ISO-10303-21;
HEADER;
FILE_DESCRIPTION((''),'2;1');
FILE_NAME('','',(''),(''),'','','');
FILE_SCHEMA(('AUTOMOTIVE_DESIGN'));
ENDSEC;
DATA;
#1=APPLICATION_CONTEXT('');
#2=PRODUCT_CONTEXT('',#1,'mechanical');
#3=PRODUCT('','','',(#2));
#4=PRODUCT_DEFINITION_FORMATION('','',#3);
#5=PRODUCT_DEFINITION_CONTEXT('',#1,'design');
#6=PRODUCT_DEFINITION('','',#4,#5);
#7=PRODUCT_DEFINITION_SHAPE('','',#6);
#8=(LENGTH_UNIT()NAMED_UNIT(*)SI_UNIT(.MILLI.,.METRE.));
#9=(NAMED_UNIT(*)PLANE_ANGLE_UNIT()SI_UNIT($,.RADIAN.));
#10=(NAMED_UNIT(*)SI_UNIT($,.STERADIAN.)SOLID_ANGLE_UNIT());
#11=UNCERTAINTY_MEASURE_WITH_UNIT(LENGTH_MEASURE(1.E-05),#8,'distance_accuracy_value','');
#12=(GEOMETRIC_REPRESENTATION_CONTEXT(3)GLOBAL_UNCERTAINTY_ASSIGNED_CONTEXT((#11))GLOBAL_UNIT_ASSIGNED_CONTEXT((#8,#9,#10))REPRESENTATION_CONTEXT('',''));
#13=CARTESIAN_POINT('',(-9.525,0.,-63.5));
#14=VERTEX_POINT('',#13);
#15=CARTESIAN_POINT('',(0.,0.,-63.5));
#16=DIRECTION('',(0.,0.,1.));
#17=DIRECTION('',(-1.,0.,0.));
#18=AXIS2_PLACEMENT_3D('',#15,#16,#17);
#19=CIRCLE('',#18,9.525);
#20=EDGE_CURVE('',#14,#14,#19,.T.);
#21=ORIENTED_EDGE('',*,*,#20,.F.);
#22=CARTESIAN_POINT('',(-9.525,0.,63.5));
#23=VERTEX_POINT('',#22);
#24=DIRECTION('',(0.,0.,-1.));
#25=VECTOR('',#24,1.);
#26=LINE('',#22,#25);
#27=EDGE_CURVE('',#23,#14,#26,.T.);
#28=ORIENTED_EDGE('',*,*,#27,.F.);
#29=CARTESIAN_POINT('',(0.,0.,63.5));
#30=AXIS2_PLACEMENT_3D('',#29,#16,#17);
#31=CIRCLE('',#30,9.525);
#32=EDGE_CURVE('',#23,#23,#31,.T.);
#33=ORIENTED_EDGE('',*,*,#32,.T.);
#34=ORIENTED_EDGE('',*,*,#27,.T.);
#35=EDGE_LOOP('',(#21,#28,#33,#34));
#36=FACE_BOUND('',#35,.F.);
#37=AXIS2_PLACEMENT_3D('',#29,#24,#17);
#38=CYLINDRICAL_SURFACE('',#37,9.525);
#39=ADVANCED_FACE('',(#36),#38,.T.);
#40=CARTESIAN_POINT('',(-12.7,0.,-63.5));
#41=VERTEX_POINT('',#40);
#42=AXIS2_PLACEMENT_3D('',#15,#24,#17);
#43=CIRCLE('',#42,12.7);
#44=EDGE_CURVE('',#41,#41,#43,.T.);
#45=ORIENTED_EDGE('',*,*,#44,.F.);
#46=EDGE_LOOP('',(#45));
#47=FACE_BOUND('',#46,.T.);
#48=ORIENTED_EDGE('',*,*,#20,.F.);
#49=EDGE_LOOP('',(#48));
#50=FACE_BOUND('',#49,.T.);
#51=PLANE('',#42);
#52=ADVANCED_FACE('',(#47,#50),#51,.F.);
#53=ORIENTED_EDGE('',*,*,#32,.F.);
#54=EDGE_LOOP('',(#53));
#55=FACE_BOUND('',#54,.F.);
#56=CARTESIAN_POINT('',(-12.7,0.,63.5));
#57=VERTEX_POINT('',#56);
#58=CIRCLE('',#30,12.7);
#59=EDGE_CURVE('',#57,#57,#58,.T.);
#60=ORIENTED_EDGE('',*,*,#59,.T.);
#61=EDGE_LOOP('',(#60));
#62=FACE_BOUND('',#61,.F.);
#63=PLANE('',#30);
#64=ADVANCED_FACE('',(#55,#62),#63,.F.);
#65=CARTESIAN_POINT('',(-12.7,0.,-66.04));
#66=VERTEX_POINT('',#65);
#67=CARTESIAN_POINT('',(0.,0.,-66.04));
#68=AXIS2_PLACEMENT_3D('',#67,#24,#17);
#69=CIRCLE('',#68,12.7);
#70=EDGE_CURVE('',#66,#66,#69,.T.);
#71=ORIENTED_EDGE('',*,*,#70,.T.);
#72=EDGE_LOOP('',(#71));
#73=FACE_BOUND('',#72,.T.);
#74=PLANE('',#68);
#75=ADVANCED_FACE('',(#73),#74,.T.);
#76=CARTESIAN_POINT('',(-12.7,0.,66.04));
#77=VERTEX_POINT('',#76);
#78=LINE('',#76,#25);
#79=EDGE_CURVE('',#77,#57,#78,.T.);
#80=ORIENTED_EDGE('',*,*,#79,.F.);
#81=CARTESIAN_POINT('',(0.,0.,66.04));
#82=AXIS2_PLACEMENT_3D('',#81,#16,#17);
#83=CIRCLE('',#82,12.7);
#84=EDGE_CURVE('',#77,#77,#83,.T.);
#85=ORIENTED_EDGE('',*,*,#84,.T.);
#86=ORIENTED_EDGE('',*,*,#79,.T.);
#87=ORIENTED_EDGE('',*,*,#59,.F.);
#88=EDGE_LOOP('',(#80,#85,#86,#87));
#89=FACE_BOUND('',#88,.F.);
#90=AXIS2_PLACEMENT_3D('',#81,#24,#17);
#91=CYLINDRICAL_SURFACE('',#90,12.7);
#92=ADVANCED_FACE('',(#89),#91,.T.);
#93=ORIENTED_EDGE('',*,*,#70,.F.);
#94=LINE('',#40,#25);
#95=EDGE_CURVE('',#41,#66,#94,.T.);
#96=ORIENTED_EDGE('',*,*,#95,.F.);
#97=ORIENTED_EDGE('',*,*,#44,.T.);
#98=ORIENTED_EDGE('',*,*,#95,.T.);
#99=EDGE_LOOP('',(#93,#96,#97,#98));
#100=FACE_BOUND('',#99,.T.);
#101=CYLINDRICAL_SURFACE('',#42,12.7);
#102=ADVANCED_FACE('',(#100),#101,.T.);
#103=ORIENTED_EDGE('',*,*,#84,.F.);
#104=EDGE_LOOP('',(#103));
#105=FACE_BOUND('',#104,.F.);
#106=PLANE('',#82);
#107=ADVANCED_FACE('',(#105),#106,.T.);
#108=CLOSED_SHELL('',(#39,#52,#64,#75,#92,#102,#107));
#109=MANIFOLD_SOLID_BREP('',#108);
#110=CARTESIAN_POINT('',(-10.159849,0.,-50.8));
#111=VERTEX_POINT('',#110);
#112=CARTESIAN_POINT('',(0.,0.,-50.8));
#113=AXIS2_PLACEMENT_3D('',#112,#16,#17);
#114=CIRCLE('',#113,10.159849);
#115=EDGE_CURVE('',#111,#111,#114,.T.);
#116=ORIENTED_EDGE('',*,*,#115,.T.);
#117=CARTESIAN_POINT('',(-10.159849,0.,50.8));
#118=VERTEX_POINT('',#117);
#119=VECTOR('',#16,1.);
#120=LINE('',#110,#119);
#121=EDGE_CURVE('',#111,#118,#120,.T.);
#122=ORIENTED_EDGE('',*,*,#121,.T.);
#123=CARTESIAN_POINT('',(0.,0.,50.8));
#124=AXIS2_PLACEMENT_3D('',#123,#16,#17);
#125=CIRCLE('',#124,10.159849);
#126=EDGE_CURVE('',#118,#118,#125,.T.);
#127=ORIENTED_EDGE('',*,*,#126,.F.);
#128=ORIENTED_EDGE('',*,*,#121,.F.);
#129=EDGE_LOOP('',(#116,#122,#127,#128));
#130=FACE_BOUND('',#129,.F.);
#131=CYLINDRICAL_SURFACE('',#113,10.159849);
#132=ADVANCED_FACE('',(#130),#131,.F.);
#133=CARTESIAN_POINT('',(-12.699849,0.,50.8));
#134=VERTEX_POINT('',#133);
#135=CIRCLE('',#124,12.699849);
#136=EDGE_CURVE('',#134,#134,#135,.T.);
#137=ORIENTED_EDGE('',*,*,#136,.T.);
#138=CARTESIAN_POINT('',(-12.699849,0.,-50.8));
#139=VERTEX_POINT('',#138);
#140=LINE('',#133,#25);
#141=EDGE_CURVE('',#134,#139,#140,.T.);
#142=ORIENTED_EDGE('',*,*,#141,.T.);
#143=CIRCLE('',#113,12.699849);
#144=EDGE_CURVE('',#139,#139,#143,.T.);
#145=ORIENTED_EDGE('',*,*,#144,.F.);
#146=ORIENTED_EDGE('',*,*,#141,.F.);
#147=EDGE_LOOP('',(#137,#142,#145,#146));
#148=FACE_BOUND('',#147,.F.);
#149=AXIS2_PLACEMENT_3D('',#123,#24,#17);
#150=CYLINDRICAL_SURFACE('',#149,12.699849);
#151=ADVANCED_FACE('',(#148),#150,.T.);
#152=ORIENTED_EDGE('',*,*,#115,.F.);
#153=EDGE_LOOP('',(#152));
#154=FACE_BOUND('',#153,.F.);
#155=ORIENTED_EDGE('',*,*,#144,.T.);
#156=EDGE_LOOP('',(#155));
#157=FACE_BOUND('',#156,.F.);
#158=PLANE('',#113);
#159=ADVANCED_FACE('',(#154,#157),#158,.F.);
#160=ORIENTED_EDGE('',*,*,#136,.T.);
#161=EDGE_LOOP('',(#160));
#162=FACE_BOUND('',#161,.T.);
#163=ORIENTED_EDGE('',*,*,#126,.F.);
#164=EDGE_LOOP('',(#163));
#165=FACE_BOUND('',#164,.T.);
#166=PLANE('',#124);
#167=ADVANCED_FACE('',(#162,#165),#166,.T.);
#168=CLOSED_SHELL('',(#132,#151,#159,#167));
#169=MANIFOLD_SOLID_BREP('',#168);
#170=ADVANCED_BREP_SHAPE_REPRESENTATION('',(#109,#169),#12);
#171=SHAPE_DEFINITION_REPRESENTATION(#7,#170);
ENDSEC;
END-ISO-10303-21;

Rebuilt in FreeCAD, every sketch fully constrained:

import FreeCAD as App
import Part
import Sketcher
from FreeCAD import Vector
Q = App.Units.Quantity

doc = App.newDocument("Part")
params = doc.addObject("Spreadsheet::Sheet", "Params")
for row, (alias, value) in enumerate([
    ("sketch1_height", "5 in"),
    ("sketch1_width", "0.375 in"),
    ("revolution_angle", "360 deg"),
    ("sketch2_width", "0.5 in"),
    ("sketch2_height", "0.1 in"),
    ("revolution2_angle", "360 deg"),
    ("sketch3_width", "0.5 in"),
    ("sketch3_height", "0.1 in"),
    ("revolution3_angle", "360 deg"),
    ("sketch4_height", "4 in"),
    ("sketch4_width", "0.1 in"),
    ("revolution4_angle", "360 deg"),
], start=1):
    params.set(f"A{row}", alias)
    params.set(f"B{row}", "=" + value)
    params.setAlias(f"B{row}", alias)

body = doc.addObject("PartDesign::Body", "Body")

# Sketch on XZ plane
sketch1 = doc.addObject("Sketcher::SketchObject", "Sketch")
body.addObject(sketch1)
sketch1.AttachmentSupport = (doc.XZ_Plane, [""])
sketch1.MapMode = "FlatFace"
sketch1.addGeometry([
    Part.LineSegment(Vector(-10, 64, 0), Vector(-10, -64, 0)),
    Part.LineSegment(Vector(-10, -64, 0), Vector(0, -64, 0)),
    Part.LineSegment(Vector(0, -64, 0), Vector(0, 64, 0)),
    Part.LineSegment(Vector(0, 64, 0), Vector(-10, 64, 0)),
], False)
sketch1.addConstraint([
    Sketcher.Constraint("Coincident", 0, 2, 1, 1),
    Sketcher.Constraint("Coincident", 1, 2, 2, 1),
    Sketcher.Constraint("Coincident", 2, 2, 3, 1),
    Sketcher.Constraint("Coincident", 3, 2, 0, 1),
    Sketcher.Constraint("Vertical", 0),
    Sketcher.Constraint("Horizontal", 1),
    Sketcher.Constraint("Vertical", 2),
    Sketcher.Constraint("Horizontal", 3),
    Sketcher.Constraint("Symmetric", 1, 2, 2, 2, -1, 1),
    Sketcher.Constraint("DistanceY", 0, 2, 0, 1, Q("5 in")),
    Sketcher.Constraint("DistanceX", 1, 1, 1, 2, Q("0.375 in")),
])
sketch1.setExpression("Constraints[9]", "Params.sketch1_height")
sketch1.setExpression("Constraints[10]", "Params.sketch1_width")
revolution = doc.addObject("PartDesign::Revolution", "Revolution")
body.addObject(revolution)
revolution.Profile = sketch1
revolution.ReferenceAxis = (sketch1, ["V_Axis"])
revolution.setExpression("Angle", "Params.revolution_angle")

# Sketch on XZ plane
sketch2 = doc.addObject("Sketcher::SketchObject", "Sketch001")
body.addObject(sketch2)
sketch2.AttachmentSupport = (doc.XZ_Plane, [""])
sketch2.MapMode = "FlatFace"
sketch2.addGeometry([
    Part.LineSegment(Vector(0, 63.5, 0), Vector(0, 66, 0)),
    Part.LineSegment(Vector(0, 66, 0), Vector(-12.7, 66, 0)),
    Part.LineSegment(Vector(-12.7, 66, 0), Vector(-12.7, 63.5, 0)),
    Part.LineSegment(Vector(-12.7, 63.5, 0), Vector(0, 63.5, 0)),
], False)
sketch2.addConstraint([
    Sketcher.Constraint("Coincident", 0, 2, 1, 1),
    Sketcher.Constraint("Coincident", 1, 2, 2, 1),
    Sketcher.Constraint("Coincident", 2, 2, 3, 1),
    Sketcher.Constraint("Coincident", 3, 2, 0, 1),
    Sketcher.Constraint("Vertical", 0),
    Sketcher.Constraint("Horizontal", 1),
    Sketcher.Constraint("Vertical", 2),
    Sketcher.Constraint("Horizontal", 3),
    Sketcher.Constraint("PointOnObject", 0, 2, -2),
    Sketcher.Constraint("DistanceX", 1, 2, 1, 1, Q("0.5 in")),
    Sketcher.Constraint("DistanceY", 0, 1, 0, 2, Q("0.1 in")),
    Sketcher.Constraint("DistanceY", -1, 1, 0, 2, Q("2.6 in")),
])
sketch2.setExpression("Constraints[9]", "Params.sketch2_width")
sketch2.setExpression("Constraints[10]", "Params.sketch2_height")
revolution2 = doc.addObject("PartDesign::Revolution", "Revolution001")
body.addObject(revolution2)
revolution2.Profile = sketch2
revolution2.ReferenceAxis = (sketch2, ["V_Axis"])
revolution2.setExpression("Angle", "Params.revolution2_angle")

# Sketch on XZ plane
sketch3 = doc.addObject("Sketcher::SketchObject", "Sketch002")
body.addObject(sketch3)
sketch3.AttachmentSupport = (doc.XZ_Plane, [""])
sketch3.MapMode = "FlatFace"
sketch3.addGeometry([
    Part.LineSegment(Vector(0, -66, 0), Vector(0, -63.5, 0)),
    Part.LineSegment(Vector(0, -63.5, 0), Vector(-12.7, -63.5, 0)),
    Part.LineSegment(Vector(-12.7, -63.5, 0), Vector(-12.7, -66, 0)),
    Part.LineSegment(Vector(-12.7, -66, 0), Vector(0, -66, 0)),
], False)
sketch3.addConstraint([
    Sketcher.Constraint("Coincident", 0, 2, 1, 1),
    Sketcher.Constraint("Coincident", 1, 2, 2, 1),
    Sketcher.Constraint("Coincident", 2, 2, 3, 1),
    Sketcher.Constraint("Coincident", 3, 2, 0, 1),
    Sketcher.Constraint("Vertical", 0),
    Sketcher.Constraint("Horizontal", 1),
    Sketcher.Constraint("Vertical", 2),
    Sketcher.Constraint("Horizontal", 3),
    Sketcher.Constraint("PointOnObject", 0, 2, -2),
    Sketcher.Constraint("DistanceX", 1, 2, 1, 1, Q("0.5 in")),
    Sketcher.Constraint("DistanceY", 0, 1, 0, 2, Q("0.1 in")),
    Sketcher.Constraint("DistanceY", 0, 2, -1, 1, Q("2.5 in")),
])
sketch3.setExpression("Constraints[9]", "Params.sketch3_width")
sketch3.setExpression("Constraints[10]", "Params.sketch3_height")
revolution3 = doc.addObject("PartDesign::Revolution", "Revolution002")
body.addObject(revolution3)
revolution3.Profile = sketch3
revolution3.ReferenceAxis = (sketch3, ["V_Axis"])
revolution3.setExpression("Angle", "Params.revolution3_angle")
body2 = doc.addObject("PartDesign::Body", "Body001")

# Sketch on XZ plane
sketch4 = doc.addObject("Sketcher::SketchObject", "Sketch003")
body2.addObject(sketch4)
sketch4.AttachmentSupport = (doc.getObject("XZ_Plane001"), [""])
sketch4.MapMode = "FlatFace"
sketch4.addGeometry([
    Part.LineSegment(Vector(-12.7, 50.8, 0), Vector(-12.7, -50.8, 0)),
    Part.LineSegment(Vector(-12.7, -50.8, 0), Vector(-10.2, -50.8, 0)),
    Part.LineSegment(Vector(-10.2, -50.8, 0), Vector(-10.2, 50.8, 0)),
    Part.LineSegment(Vector(-10.2, 50.8, 0), Vector(-12.7, 50.8, 0)),
], False)
sketch4.addConstraint([
    Sketcher.Constraint("Coincident", 0, 2, 1, 1),
    Sketcher.Constraint("Coincident", 1, 2, 2, 1),
    Sketcher.Constraint("Coincident", 2, 2, 3, 1),
    Sketcher.Constraint("Coincident", 3, 2, 0, 1),
    Sketcher.Constraint("Vertical", 0),
    Sketcher.Constraint("Horizontal", 1),
    Sketcher.Constraint("Vertical", 2),
    Sketcher.Constraint("Horizontal", 3),
    Sketcher.Constraint("DistanceY", 0, 2, 0, 1, Q("4 in")),
    Sketcher.Constraint("DistanceX", 1, 1, 1, 2, Q("0.1 in")),
    Sketcher.Constraint("DistanceY", 0, 2, -1, 1, Q("2 in")),
    Sketcher.Constraint("DistanceX", 0, 2, -1, 1, Q("12.699849 mm")),
])
sketch4.setExpression("Constraints[8]", "Params.sketch4_height")
sketch4.setExpression("Constraints[9]", "Params.sketch4_width")
revolution4 = doc.addObject("PartDesign::Revolution", "Revolution003")
body2.addObject(revolution4)
revolution4.Profile = sketch4
revolution4.ReferenceAxis = (sketch4, ["V_Axis"])
revolution4.setExpression("Angle", "Params.revolution4_angle")

doc.recompute()
